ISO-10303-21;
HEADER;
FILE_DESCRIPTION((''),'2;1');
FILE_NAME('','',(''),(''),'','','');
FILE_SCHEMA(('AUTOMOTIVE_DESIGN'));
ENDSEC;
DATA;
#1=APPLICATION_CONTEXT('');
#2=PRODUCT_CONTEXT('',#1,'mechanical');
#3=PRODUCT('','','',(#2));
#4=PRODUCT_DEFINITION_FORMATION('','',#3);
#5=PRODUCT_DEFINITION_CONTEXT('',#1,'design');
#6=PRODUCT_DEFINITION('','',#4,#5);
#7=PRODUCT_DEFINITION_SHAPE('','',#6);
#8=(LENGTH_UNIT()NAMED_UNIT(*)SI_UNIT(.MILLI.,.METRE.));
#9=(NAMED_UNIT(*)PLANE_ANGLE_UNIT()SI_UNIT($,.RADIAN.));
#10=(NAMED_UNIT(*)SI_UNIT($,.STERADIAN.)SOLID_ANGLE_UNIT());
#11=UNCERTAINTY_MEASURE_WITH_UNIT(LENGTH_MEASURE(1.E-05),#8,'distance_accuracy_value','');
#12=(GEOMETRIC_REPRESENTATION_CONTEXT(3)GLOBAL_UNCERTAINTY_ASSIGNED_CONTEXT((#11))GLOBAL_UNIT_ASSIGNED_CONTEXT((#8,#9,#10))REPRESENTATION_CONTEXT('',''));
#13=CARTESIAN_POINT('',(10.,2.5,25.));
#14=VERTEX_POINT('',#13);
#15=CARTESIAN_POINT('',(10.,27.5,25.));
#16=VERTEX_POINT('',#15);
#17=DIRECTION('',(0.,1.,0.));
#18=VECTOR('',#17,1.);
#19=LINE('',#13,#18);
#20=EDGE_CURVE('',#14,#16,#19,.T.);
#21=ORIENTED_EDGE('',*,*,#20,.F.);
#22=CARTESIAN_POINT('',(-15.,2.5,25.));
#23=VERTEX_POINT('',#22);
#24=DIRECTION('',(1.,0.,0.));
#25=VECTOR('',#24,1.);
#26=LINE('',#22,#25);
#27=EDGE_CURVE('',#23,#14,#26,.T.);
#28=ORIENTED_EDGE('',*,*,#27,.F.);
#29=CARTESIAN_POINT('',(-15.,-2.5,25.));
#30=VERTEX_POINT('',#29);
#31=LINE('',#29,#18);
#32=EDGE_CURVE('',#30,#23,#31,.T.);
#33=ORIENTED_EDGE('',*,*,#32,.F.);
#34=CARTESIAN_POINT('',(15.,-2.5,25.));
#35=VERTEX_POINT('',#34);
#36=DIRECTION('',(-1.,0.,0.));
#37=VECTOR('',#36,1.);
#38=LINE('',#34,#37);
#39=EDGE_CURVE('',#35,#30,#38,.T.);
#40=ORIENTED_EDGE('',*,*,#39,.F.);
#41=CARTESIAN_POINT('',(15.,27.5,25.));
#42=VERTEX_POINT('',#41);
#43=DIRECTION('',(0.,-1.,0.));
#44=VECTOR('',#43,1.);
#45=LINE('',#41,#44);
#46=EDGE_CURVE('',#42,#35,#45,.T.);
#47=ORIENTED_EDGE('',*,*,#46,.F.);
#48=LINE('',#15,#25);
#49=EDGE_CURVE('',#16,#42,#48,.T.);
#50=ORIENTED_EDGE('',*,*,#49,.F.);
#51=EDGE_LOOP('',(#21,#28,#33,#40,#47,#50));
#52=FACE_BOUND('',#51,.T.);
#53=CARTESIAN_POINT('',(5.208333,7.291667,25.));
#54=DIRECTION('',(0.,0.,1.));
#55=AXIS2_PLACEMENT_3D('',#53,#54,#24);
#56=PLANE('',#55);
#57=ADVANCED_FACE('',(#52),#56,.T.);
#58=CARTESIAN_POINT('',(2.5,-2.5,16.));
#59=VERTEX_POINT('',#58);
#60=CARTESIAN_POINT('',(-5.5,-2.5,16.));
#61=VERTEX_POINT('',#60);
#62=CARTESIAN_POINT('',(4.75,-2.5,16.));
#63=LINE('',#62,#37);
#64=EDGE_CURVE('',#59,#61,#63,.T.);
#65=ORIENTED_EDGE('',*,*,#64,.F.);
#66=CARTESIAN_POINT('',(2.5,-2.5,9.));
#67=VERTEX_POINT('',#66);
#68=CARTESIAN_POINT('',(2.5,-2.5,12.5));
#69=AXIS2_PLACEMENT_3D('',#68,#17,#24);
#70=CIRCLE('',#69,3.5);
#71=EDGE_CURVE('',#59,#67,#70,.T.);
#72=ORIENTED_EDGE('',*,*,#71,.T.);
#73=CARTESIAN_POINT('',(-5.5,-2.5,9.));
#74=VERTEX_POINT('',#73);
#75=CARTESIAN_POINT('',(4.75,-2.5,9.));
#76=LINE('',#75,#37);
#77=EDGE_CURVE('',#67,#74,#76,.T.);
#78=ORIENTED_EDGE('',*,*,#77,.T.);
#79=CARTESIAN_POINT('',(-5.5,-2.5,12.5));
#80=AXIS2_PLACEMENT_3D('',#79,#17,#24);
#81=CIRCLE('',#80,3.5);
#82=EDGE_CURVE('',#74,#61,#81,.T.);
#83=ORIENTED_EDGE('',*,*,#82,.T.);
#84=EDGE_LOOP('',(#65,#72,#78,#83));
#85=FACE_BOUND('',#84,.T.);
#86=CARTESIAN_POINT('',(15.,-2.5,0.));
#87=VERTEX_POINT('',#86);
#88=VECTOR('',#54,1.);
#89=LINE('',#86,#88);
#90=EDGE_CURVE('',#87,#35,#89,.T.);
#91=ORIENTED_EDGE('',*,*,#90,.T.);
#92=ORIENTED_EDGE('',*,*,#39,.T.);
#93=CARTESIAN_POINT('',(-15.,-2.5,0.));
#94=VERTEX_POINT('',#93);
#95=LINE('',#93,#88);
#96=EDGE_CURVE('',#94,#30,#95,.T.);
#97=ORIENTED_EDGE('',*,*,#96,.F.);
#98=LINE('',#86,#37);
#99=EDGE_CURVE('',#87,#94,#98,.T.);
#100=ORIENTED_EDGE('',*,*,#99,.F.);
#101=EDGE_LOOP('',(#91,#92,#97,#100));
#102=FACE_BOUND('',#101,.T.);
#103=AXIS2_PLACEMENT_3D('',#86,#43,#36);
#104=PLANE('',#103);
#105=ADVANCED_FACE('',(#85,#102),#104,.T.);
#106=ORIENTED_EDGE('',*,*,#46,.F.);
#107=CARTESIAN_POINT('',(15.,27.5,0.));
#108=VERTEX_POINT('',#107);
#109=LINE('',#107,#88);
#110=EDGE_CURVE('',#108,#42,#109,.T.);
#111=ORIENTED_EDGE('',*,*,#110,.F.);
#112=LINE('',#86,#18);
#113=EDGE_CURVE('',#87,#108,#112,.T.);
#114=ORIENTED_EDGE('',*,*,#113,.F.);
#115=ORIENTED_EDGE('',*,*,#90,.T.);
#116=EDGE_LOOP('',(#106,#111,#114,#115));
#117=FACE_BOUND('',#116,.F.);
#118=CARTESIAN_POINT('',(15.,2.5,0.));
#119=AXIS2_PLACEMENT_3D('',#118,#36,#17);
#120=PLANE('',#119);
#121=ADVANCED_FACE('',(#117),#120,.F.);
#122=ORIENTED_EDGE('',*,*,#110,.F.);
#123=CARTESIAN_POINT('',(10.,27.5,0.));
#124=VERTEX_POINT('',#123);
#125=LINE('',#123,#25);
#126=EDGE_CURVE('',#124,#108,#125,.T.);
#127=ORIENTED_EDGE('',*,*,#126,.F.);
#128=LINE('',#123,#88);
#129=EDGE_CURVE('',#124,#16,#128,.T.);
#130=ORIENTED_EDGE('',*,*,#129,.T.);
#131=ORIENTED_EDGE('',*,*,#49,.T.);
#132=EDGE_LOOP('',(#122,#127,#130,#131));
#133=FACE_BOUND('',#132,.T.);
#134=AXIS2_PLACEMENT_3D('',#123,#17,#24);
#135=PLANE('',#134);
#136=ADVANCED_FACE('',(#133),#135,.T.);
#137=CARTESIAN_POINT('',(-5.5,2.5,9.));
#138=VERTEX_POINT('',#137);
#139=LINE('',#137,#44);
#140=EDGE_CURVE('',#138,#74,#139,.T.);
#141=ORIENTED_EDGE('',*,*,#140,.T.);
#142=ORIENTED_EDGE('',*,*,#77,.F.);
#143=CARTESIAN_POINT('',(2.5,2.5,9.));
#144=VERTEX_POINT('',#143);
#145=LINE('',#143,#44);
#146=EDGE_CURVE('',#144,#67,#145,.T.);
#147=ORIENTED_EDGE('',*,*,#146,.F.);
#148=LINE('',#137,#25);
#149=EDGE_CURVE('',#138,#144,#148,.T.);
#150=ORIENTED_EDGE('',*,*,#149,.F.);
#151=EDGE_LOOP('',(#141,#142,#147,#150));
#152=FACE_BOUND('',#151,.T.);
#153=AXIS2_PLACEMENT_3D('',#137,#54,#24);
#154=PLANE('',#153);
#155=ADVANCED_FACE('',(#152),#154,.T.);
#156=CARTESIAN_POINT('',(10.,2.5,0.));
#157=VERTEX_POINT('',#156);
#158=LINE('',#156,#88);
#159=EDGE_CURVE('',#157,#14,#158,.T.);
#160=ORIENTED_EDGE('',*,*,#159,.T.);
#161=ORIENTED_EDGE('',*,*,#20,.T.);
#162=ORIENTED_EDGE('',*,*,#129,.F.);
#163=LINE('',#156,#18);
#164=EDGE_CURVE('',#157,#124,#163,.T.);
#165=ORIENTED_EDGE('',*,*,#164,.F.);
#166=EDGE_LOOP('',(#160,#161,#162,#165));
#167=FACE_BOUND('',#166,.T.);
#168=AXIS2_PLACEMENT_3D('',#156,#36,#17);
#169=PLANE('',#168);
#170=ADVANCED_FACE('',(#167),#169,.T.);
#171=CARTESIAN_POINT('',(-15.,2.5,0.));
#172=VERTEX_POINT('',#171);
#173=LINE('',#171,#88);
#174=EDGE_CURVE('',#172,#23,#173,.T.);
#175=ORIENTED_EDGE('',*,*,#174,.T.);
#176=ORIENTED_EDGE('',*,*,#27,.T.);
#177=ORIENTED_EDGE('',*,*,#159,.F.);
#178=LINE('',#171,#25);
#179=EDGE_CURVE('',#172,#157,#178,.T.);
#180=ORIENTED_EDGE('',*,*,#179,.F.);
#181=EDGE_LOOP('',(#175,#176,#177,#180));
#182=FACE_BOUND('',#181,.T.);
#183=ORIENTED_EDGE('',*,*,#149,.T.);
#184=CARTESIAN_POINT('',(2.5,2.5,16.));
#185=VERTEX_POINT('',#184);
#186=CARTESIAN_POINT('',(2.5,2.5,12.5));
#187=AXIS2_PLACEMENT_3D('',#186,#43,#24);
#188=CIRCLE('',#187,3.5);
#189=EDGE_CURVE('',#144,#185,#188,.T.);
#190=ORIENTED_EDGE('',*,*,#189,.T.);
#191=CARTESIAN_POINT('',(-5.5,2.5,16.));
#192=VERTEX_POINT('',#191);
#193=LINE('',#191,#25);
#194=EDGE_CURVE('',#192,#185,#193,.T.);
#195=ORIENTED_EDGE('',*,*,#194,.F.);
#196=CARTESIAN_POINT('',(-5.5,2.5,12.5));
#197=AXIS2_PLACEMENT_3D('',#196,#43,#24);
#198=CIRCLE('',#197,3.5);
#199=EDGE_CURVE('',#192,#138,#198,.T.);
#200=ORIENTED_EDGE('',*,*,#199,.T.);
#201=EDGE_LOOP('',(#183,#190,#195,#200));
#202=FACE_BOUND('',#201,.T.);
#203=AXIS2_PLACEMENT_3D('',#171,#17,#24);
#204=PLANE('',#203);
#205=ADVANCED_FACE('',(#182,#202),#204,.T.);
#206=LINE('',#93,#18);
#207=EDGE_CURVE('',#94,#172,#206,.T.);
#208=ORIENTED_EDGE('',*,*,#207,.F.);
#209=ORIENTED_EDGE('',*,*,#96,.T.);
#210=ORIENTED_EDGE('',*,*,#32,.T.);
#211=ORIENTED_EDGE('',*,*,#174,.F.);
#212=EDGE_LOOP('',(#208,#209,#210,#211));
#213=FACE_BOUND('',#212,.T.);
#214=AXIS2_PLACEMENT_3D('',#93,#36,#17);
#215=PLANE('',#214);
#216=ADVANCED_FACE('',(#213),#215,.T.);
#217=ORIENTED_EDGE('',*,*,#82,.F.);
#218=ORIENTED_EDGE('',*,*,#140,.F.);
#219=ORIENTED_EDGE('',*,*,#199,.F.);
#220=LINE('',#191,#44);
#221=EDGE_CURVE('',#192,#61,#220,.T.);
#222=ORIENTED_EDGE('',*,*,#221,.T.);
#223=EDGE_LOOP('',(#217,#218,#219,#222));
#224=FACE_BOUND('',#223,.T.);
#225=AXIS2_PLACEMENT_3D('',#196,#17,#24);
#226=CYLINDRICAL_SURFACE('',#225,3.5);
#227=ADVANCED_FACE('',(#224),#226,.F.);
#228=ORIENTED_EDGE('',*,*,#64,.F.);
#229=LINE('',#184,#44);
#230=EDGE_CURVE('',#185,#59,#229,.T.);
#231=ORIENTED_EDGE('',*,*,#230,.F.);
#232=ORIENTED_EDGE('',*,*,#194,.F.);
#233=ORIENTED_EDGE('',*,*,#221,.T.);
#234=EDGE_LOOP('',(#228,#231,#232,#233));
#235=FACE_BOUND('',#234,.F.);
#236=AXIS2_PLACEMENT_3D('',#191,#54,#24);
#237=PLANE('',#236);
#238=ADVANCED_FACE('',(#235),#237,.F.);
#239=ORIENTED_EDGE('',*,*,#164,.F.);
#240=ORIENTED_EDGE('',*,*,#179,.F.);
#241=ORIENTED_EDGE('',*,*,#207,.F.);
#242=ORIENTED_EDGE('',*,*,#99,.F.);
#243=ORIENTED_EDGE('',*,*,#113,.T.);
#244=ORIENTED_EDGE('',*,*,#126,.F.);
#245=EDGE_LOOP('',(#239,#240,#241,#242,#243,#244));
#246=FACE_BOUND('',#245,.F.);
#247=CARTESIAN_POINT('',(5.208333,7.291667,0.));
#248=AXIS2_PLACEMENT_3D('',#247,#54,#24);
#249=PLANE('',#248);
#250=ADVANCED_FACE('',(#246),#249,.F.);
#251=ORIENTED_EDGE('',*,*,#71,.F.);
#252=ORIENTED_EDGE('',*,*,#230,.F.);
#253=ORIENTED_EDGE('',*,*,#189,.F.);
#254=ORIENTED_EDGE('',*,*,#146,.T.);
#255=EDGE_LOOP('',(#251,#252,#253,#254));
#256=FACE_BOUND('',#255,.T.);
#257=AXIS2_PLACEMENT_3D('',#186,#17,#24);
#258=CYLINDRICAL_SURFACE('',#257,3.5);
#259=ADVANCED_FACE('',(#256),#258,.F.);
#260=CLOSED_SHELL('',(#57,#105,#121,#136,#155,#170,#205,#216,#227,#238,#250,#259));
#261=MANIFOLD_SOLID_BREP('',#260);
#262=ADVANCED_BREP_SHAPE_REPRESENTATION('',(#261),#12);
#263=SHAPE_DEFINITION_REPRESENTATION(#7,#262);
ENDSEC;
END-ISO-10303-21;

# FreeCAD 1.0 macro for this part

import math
import FreeCAD as App
import Part
import Sketcher

V = App.Vector

doc = App.newDocument("Part")
body = doc.addObject("PartDesign::Body", "Body")

sketch1 = doc.addObject("Sketcher::SketchObject", "Sketch")
body.addObject(sketch1)
sketch1.AttachmentSupport = (doc.XY_Plane, [""])
sketch1.MapMode = "FlatFace"
sketch1.addGeometry([
    Part.LineSegment(V(15, -2.5, 0), V(15, 27.5, 0)),
    Part.LineSegment(V(15, 27.5, 0), V(10, 27.5, 0)),
    Part.LineSegment(V(10, 27.5, 0), V(10, 2.5, 0)),
    Part.LineSegment(V(10, 2.5, 0), V(-15, 2.5, 0)),
    Part.LineSegment(V(-15, 2.5, 0), V(-15, -2.5, 0)),
    Part.LineSegment(V(-15, -2.5, 0), V(15, -2.5, 0)),
], False)
sketch1.addConstraint([
    Sketcher.Constraint("Coincident", 0, 2, 1, 1),
    Sketcher.Constraint("Coincident", 1, 2, 2, 1),
    Sketcher.Constraint("Coincident", 2, 2, 3, 1),
    Sketcher.Constraint("Coincident", 3, 2, 4, 1),
    Sketcher.Constraint("Coincident", 4, 2, 5, 1),
    Sketcher.Constraint("Coincident", 5, 2, 0, 1),
    Sketcher.Constraint("Vertical", 0),
    Sketcher.Constraint("Horizontal", 1),
    Sketcher.Constraint("Vertical", 2),
    Sketcher.Constraint("Horizontal", 3),
    Sketcher.Constraint("Vertical", 4),
    Sketcher.Constraint("Horizontal", 5),
    Sketcher.Constraint("Symmetric", 3, 2, 5, 2, -1, 1),
    Sketcher.Constraint("Equal", 5, 0),
    Sketcher.Constraint("Equal", 3, 2),
    Sketcher.Constraint("DistanceX", 1, 2, 1, 1, 5.0),
    Sketcher.Constraint("DistanceX", 3, 2, 3, 1, 25.0),
])
pad1 = doc.addObject("PartDesign::Pad", "Pad")
body.addObject(pad1)
pad1.Profile = sketch1
pad1.Length = 25

sketch2 = doc.addObject("Sketcher::SketchObject", "Sketch001")
body.addObject(sketch2)
sketch2.AttachmentSupport = (doc.XZ_Plane, [""])
sketch2.MapMode = "FlatFace"
sketch2.AttachmentOffset = App.Placement(V(0, 0, -2.5), App.Rotation())
sketch2.addGeometry([
    Part.LineSegment(V(2.5, 9, 0), V(-5.5, 9, 0)),
    Part.ArcOfCircle(Part.Circle(V(-5.5, 12.5, 0), V(0, 0, 1), 3.5), math.radians(90), math.radians(270)),
    Part.LineSegment(V(-5.5, 16, 0), V(2.5, 16, 0)),
    Part.ArcOfCircle(Part.Circle(V(2.5, 12.5, 0), V(0, 0, 1), 3.5), math.radians(-90), math.radians(90)),
], False)
sketch2.addConstraint([
    Sketcher.Constraint("Tangent", 0, 2, 1, 2),
    Sketcher.Constraint("Tangent", 1, 1, 2, 1),
    Sketcher.Constraint("Tangent", 2, 2, 3, 2),
    Sketcher.Constraint("Tangent", 3, 1, 0, 1),
    Sketcher.Constraint("Horizontal", 0),
    Sketcher.Constraint("Horizontal", 2),
    Sketcher.Constraint("Radius", 1, 3.5),
    Sketcher.Constraint("DistanceX", 0, 2, 0, 1, 8.0),
    Sketcher.Constraint("DistanceY", -1, 1, 0, 2, 9.0),
    Sketcher.Constraint("DistanceX", 1, 3, -1, 1, 5.5),
])
pocket1 = doc.addObject("PartDesign::Pocket", "Pocket")
body.addObject(pocket1)
pocket1.Profile = sketch2
pocket1.Length = 30
pocket1.Reversed = True

doc.recompute()
